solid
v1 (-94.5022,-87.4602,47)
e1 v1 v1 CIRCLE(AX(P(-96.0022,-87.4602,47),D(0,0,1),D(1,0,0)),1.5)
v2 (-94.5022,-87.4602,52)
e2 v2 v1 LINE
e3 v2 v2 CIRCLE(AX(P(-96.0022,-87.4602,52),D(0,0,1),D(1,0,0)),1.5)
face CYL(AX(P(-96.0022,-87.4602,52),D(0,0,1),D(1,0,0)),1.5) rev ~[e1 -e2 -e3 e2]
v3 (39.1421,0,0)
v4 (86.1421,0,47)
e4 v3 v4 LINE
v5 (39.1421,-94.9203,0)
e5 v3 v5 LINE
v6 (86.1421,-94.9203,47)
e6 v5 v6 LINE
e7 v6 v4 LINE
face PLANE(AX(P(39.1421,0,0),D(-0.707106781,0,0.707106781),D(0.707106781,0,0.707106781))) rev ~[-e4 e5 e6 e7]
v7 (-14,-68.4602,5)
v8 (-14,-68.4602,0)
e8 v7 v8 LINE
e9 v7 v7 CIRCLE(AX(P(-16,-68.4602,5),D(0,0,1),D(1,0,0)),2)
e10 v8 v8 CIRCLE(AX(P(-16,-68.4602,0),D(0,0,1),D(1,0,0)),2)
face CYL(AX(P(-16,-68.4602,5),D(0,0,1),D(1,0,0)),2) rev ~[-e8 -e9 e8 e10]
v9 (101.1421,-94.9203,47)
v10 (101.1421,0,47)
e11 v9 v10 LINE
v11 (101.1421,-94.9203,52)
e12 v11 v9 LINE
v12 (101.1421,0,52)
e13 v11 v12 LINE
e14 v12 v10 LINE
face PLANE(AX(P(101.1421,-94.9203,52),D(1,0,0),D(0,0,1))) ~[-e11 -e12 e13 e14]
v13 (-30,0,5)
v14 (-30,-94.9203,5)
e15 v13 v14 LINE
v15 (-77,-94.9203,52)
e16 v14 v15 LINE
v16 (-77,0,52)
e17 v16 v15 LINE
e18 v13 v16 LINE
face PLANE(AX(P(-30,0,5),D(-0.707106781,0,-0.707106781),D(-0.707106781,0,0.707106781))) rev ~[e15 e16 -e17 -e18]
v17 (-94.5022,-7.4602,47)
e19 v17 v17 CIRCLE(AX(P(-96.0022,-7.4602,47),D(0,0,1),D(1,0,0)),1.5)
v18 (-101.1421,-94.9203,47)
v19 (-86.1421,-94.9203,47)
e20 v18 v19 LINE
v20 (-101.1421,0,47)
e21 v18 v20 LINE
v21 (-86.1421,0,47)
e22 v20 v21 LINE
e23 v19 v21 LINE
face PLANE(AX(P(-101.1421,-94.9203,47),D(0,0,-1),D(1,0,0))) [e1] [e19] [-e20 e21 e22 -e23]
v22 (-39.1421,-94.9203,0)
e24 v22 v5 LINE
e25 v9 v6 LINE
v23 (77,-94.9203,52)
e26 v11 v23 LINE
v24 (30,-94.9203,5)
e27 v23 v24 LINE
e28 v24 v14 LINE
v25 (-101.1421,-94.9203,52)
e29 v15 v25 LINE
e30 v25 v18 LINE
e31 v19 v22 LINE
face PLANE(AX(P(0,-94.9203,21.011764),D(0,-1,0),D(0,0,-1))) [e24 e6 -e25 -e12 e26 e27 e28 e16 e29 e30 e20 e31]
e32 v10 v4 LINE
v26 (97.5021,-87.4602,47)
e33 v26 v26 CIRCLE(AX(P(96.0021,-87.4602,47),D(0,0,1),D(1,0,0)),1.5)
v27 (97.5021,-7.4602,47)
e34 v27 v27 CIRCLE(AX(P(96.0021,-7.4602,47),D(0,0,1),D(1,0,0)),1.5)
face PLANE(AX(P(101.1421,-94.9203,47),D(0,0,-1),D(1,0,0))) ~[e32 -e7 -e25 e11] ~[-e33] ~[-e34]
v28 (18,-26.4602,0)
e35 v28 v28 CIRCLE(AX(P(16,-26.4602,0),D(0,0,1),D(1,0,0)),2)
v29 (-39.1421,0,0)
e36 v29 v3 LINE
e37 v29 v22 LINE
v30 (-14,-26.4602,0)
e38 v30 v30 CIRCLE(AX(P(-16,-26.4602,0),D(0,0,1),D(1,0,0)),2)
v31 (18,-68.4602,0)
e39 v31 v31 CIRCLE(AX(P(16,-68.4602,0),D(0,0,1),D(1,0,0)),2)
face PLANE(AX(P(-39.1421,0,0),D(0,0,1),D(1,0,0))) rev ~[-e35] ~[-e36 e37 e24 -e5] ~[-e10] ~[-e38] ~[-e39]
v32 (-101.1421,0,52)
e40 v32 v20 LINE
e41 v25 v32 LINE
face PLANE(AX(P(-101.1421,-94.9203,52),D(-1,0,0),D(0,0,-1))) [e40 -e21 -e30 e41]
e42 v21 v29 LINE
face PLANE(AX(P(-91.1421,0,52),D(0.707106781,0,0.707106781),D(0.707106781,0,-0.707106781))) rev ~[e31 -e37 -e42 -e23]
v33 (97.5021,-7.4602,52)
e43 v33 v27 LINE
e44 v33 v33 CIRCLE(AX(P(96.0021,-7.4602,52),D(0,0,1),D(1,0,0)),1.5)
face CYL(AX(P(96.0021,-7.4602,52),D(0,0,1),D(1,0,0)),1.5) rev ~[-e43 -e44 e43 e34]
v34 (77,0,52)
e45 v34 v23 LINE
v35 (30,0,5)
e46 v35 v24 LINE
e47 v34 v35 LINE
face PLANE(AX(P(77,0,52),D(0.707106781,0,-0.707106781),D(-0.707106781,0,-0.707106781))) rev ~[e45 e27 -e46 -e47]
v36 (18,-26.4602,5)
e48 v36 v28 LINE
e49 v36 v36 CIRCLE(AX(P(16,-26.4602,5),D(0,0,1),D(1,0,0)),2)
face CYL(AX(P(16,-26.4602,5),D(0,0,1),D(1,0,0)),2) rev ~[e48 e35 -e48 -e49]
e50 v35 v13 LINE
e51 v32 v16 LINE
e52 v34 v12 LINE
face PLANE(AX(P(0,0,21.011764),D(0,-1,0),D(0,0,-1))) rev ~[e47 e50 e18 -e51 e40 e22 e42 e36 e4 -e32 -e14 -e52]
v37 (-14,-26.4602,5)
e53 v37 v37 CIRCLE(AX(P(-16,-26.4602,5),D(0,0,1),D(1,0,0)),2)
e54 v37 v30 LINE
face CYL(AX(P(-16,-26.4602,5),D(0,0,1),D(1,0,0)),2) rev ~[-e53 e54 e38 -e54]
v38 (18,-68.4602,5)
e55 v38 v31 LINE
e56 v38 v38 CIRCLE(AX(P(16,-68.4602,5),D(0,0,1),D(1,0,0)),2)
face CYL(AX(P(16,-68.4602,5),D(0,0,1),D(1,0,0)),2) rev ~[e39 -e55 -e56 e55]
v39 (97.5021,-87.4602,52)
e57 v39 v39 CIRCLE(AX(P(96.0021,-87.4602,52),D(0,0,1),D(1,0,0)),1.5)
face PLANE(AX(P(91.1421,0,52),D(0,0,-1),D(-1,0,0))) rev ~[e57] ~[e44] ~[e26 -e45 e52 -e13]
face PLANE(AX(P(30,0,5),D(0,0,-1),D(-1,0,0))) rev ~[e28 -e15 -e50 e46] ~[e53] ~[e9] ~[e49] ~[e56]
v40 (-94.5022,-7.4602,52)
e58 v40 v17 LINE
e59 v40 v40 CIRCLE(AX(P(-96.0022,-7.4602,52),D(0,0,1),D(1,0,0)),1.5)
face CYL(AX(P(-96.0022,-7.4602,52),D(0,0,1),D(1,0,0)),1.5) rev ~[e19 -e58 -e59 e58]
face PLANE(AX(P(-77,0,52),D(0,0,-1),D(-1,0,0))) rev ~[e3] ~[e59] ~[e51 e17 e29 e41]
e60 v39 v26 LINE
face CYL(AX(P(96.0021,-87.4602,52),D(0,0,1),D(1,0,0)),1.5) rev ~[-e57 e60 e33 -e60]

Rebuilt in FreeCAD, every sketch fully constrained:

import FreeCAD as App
import Part
import Sketcher
from FreeCAD import Vector
Q = App.Units.Quantity


def add_polygon(sketch, points):
    """Adds a closed chain of lines whose ends are joined by coincident constraints."""
    first, n = sketch.GeometryCount, len(points)
    for a, b in zip(points, points[1:] + points[:1]):
        sketch.addGeometry(Part.LineSegment(App.Vector(*a, 0), App.Vector(*b, 0)), False)
    for i in range(n):
        sketch.addConstraint(Sketcher.Constraint("Coincident", first + i, 2, first + (i + 1) % n, 1))

doc = App.newDocument("Part")
params = doc.addObject("Spreadsheet::Sheet", "Params")
for row, (alias, value) in enumerate([
    ("pad1_length", "94.9203 mm"),
    ("sketch2_width", "15 mm"),
    ("sketch2_width2", "10 mm"),
    ("sketch2_height", "5 mm"),
    ("pad2_length", "94.9203 mm"),
    ("sketch3_diameter", "4 mm"),
    ("sketch4_diameter", "3 mm"),
], start=1):
    params.set(f"A{row}", alias)
    params.set(f"B{row}", "=" + value)
    params.setAlias(f"B{row}", alias)

body = doc.addObject("PartDesign::Body", "Body")

sketch1 = body.newObject("Sketcher::SketchObject", "Sketch")
sketch1.AttachmentSupport = (doc.getObject("XZ_Plane"), [""])
sketch1.MapMode = "FlatFace"
add_polygon(sketch1, [(-91, 52), (-39, 0), (39, 0), (91, 52), (77, 52), (30, 5), (-30, 5), (-77, 52)])
sketch1.addConstraint(Sketcher.Constraint("Horizontal", 1))
sketch1.addConstraint(Sketcher.Constraint("Horizontal", 3))
sketch1.addConstraint(Sketcher.Constraint("Horizontal", 5))
sketch1.addConstraint(Sketcher.Constraint("Horizontal", 7))
sketch1.addConstraint(Sketcher.Constraint("Symmetric", 0, 2, 1, 2, -1, 1))
sketch1.addConstraint(Sketcher.Constraint("Symmetric", 3, 2, 6, 2, -2))
sketch1.addConstraint(Sketcher.Constraint("Perpendicular", 0, 2))
sketch1.addConstraint(Sketcher.Constraint("Parallel", 2, 4))
sketch1.addConstraint(Sketcher.Constraint("Perpendicular", 4, 6))
sketch1.addConstraint(Sketcher.Constraint("Equal", 3, 7))
sketch1.addConstraint(Sketcher.Constraint("DistanceX", -1, 1, 4, 2, Q("30 mm")))
sketch1.addConstraint(Sketcher.Constraint("DistanceY", -1, 1, 2, 2, Q("52 mm")))
sketch1.addConstraint(Sketcher.Constraint("DistanceX", -1, 1, 3, 2, Q("77 mm")))
sketch1.addConstraint(Sketcher.Constraint("DistanceX", 3, 2, 3, 1, Q("14.142 mm")))
pad1 = body.newObject("PartDesign::Pad", "Pad")
pad1.Profile = sketch1
pad1.setExpression("Length", "Params.pad1_length")

sketch2 = body.newObject("Sketcher::SketchObject", "Sketch001")
sketch2.AttachmentSupport = (doc.getObject("XZ_Plane"), [""])
sketch2.MapMode = "FlatFace"
sketch2.AttachmentOffset = App.Placement(Vector(0, 0, 94.9203), App.Rotation())
add_polygon(sketch2, [(-101, 47), (-86, 47), (-91, 52), (-101, 52)])
sketch2.addConstraint(Sketcher.Constraint("Horizontal", 0))
sketch2.addConstraint(Sketcher.Constraint("Horizontal", 2))
sketch2.addConstraint(Sketcher.Constraint("Vertical", 3))
sketch2.addConstraint(Sketcher.Constraint("DistanceX", 0, 1, 0, 2, Q("15 mm")))
sketch2.addConstraint(Sketcher.Constraint("DistanceX", 2, 2, 2, 1, Q("10 mm")))
sketch2.addConstraint(Sketcher.Constraint("DistanceY", 3, 2, 3, 1, Q("5 mm")))
sketch2.addConstraint(Sketcher.Constraint("DistanceX", 1, 2, -1, 1, Q("91.142 mm")))
sketch2.addConstraint(Sketcher.Constraint("DistanceY", -1, 1, 0, 2, Q("47 mm")))
sketch2.setExpression("Constraints[7]", "Params.sketch2_width")
sketch2.setExpression("Constraints[8]", "Params.sketch2_width2")
sketch2.setExpression("Constraints[9]", "Params.sketch2_height")
pad2 = body.newObject("PartDesign::Pad", "Pad001")
pad2.Profile = sketch2
pad2.setExpression("Length", "Params.pad2_length")
pad2.Reversed = True
doc.recompute()

mirrored = body.newObject("PartDesign::Mirrored", "Mirrored")
mirrored.Originals = [pad2]
mirrored.MirrorPlane = (doc.getObject("YZ_Plane"), [""])
body.Tip = mirrored

sketch3 = body.newObject("Sketcher::SketchObject", "Sketch002")
sketch3.AttachmentSupport = (doc.getObject("XY_Plane"), [""])
sketch3.MapMode = "FlatFace"
sketch3.AttachmentOffset = App.Placement(Vector(0, 0, 5), App.Rotation())
sketch3.addGeometry(Part.Circle(Vector(-16, -26.5, 0), Vector(0, 0, 1), 2), False)
sketch3.addGeometry(Part.Circle(Vector(-16, -68.5, 0), Vector(0, 0, 1), 2), False)
sketch3.addGeometry(Part.Circle(Vector(16, -68.5, 0), Vector(0, 0, 1), 2), False)
sketch3.addGeometry(Part.Circle(Vector(16, -26.5, 0), Vector(0, 0, 1), 2), False)
sketch3.addConstraint(Sketcher.Constraint("Equal", 0, 1))
sketch3.addConstraint(Sketcher.Constraint("Equal", 1, 2))
sketch3.addConstraint(Sketcher.Constraint("Equal", 2, 3))
sketch3.addConstraint(Sketcher.Constraint("Symmetric", 1, 3, 2, 3, -2))
sketch3.addConstraint(Sketcher.Constraint("Symmetric", 0, 3, 3, 3, -2))
sketch3.addConstraint(Sketcher.Constraint("Vertical", 0, 3, 1, 3))
sketch3.addConstraint(Sketcher.Constraint("Diameter", 0, Q("4 mm")))
sketch3.addConstraint(Sketcher.Constraint("DistanceX", 0, 3, -1, 1, Q("16 mm")))
sketch3.addConstraint(Sketcher.Constraint("DistanceY", 1, 3, 0, 3, Q("42 mm")))
sketch3.addConstraint(Sketcher.Constraint("DistanceY", 0, 3, -1, 1, Q("26.4602 mm")))
sketch3.setExpression("Constraints[6]", "Params.sketch3_diameter")
pocket1 = body.newObject("PartDesign::Pocket", "Pocket")
pocket1.Profile = sketch3
pocket1.Type = "ThroughAll"

sketch4 = body.newObject("Sketcher::SketchObject", "Sketch003")
sketch4.AttachmentSupport = (doc.getObject("XY_Plane"), [""])
sketch4.MapMode = "FlatFace"
sketch4.AttachmentOffset = App.Placement(Vector(0, 0, 52), App.Rotation())
sketch4.addGeometry(Part.Circle(Vector(-96, -87.5, 0), Vector(0, 0, 1), 1.5), False)
sketch4.addGeometry(Part.Circle(Vector(96, -87.5, 0), Vector(0, 0, 1), 1.5), False)
sketch4.addGeometry(Part.Circle(Vector(96, -7.5, 0), Vector(0, 0, 1), 1.5), False)
sketch4.addGeometry(Part.Circle(Vector(-96, -7.5, 0), Vector(0, 0, 1), 1.5), False)
sketch4.addConstraint(Sketcher.Constraint("Equal", 0, 1))
sketch4.addConstraint(Sketcher.Constraint("Equal", 1, 2))
sketch4.addConstraint(Sketcher.Constraint("Equal", 2, 3))
sketch4.addConstraint(Sketcher.Constraint("Symmetric", 0, 3, 1, 3, -2))
sketch4.addConstraint(Sketcher.Constraint("Symmetric", 2, 3, 3, 3, -2))
sketch4.addConstraint(Sketcher.Constraint("Vertical", 1, 3, 2, 3))
sketch4.addConstraint(Sketcher.Constraint("Diameter", 0, Q("3 mm")))
sketch4.addConstraint(Sketcher.Constraint("DistanceY", 1, 3, 2, 3, Q("80 mm")))
sketch4.addConstraint(Sketcher.Constraint("DistanceX", -1, 1, 1, 3, Q("96.002 mm")))
sketch4.addConstraint(Sketcher.Constraint("DistanceY", 0, 3, -1, 1, Q("87.4602 mm")))
sketch4.setExpression("Constraints[6]", "Params.sketch4_diameter")
pocket2 = body.newObject("PartDesign::Pocket", "Pocket001")
pocket2.Profile = sketch4
pocket2.Type = "ThroughAll"

doc.recompute()
